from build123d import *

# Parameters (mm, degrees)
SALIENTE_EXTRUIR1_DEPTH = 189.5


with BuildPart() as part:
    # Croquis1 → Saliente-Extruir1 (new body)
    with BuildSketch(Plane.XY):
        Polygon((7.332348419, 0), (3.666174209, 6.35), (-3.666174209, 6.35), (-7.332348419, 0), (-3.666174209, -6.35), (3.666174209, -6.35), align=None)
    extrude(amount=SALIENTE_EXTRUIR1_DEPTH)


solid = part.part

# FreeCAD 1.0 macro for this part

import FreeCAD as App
import Part
import Sketcher
Q = App.Units.Quantity

doc = App.newDocument("Part")
params = doc.addObject("Spreadsheet::Sheet", "Params")
for row, (alias, value) in enumerate([
    ("pad1_length", "189.5 mm"),
], start=1):
    params.set(f"A{row}", alias)
    params.set(f"B{row}", "=" + value)
    params.setAlias(f"B{row}", alias)

body = doc.addObject("PartDesign::Body", "Body")

sketch1 = body.newObject("Sketcher::SketchObject", "Sketch")
sketch1.AttachmentSupport = (doc.getObject("XY_Plane"), [""])
sketch1.MapMode = "FlatFace"
sketch1.addGeometry([
    Part.LineSegment(App.Vector(7, 0, 0), App.Vector(4, 6, 0)),
    Part.LineSegment(App.Vector(4, 6, 0), App.Vector(-4, 6, 0)),
    Part.LineSegment(App.Vector(-4, 6, 0), App.Vector(-7, 0, 0)),
    Part.LineSegment(App.Vector(-7, 0, 0), App.Vector(-4, -6, 0)),
    Part.LineSegment(App.Vector(-4, -6, 0), App.Vector(4, -6, 0)),
    Part.LineSegment(App.Vector(4, -6, 0), App.Vector(7, 0, 0)),
], False)
sketch1.addConstraint([
    Sketcher.Constraint("Coincident", 0, 2, 1, 1),
    Sketcher.Constraint("Coincident", 1, 2, 2, 1),
    Sketcher.Constraint("Coincident", 2, 2, 3, 1),
    Sketcher.Constraint("Coincident", 3, 2, 4, 1),
    Sketcher.Constraint("Coincident", 4, 2, 5, 1),
    Sketcher.Constraint("Coincident", 5, 2, 0, 1),
    Sketcher.Constraint("Horizontal", 1),
    Sketcher.Constraint("Horizontal", 4),
    Sketcher.Constraint("Symmetric", 0, 2, 3, 2, -1, 1),
    Sketcher.Constraint("Symmetric", 2, 2, 5, 2, -1, 1),
    Sketcher.Constraint("PointOnObject", 2, 2, -1),
    Sketcher.Constraint("Parallel", 2, 5),
    Sketcher.Constraint("Vertical", 1, 2, 3, 2),
    Sketcher.Constraint("Angle", 0, Q("120 deg")),
    Sketcher.Constraint("DistanceY", 3, 2, 1, 2, 12.7),
    Sketcher.Constraint("DistanceX", 1, 2, 1, 1, 7.332348),
])
pad1 = body.newObject("PartDesign::Pad", "Pad")
pad1.Profile = sketch1
pad1.setExpression("Length", "Params.pad1_length")

doc.recompute()
